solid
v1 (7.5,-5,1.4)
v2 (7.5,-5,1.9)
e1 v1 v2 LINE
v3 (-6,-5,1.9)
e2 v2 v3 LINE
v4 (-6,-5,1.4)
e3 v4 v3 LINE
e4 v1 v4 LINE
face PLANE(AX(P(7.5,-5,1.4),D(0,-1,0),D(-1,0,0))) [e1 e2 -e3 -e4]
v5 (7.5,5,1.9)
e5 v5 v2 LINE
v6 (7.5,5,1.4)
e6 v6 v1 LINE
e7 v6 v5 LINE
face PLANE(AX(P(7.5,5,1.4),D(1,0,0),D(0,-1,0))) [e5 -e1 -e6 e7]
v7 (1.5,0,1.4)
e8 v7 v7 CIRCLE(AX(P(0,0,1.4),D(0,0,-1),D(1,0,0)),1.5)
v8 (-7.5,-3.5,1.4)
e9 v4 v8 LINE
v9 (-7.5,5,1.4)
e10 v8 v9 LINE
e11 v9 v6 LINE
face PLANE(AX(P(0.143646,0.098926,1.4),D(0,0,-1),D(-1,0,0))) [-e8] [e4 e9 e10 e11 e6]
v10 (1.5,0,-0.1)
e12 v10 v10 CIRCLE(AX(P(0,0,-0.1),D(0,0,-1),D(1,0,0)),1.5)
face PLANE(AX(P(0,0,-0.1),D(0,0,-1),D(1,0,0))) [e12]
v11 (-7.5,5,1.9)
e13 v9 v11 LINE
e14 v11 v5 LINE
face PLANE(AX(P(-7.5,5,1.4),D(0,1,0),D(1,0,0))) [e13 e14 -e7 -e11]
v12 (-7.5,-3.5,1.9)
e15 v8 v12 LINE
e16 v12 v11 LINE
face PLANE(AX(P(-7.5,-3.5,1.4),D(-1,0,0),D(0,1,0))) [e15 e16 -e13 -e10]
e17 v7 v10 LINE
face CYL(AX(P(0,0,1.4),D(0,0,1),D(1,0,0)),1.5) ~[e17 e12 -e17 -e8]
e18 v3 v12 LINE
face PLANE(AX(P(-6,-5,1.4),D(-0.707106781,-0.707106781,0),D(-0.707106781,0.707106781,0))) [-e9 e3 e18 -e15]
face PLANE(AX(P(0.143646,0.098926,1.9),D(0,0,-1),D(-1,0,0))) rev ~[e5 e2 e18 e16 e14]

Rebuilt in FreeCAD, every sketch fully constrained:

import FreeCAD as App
import Part
import Sketcher
from FreeCAD import Vector
Q = App.Units.Quantity


def add_polygon(sketch, points):
    """Adds a closed chain of lines whose ends are joined by coincident constraints."""
    first, n = sketch.GeometryCount, len(points)
    for a, b in zip(points, points[1:] + points[:1]):
        sketch.addGeometry(Part.LineSegment(App.Vector(*a, 0), App.Vector(*b, 0)), False)
    for i in range(n):
        sketch.addConstraint(Sketcher.Constraint("Coincident", first + i, 2, first + (i + 1) % n, 1))

doc = App.newDocument("Part")
body = doc.addObject("PartDesign::Body", "Body")

# Sketch on XY plane
sketch1 = body.newObject("Sketcher::SketchObject", "Sketch")
sketch1.AttachmentSupport = (doc.getObject("XY_Plane"), [""])
sketch1.MapMode = "FlatFace"
sketch1.AttachmentOffset = App.Placement(Vector(0, 0, 1.4), App.Rotation())
add_polygon(sketch1, [(7.5, 5), (-7.5, 5), (-7.5, -3.5), (-6, -5), (7.5, -5)])  # lines 0-4
sketch1.addConstraint([
    Sketcher.Constraint("Horizontal", 0),
    Sketcher.Constraint("Vertical", 1),
    Sketcher.Constraint("Horizontal", 3),
    Sketcher.Constraint("Vertical", 4),
    Sketcher.Constraint("Symmetric", 0, 2, 3, 2, -1, 1),
    Sketcher.Constraint("DistanceX", 0, 2, 0, 1, Q("15 mm")),
    Sketcher.Constraint("DistanceY", 4, 1, 4, 2, Q("10 mm")),
    Sketcher.Constraint("Angle", 2, Q("-45 deg")),
    Sketcher.Constraint("DistanceX", 3, 1, 3, 2, Q("13.5 mm")),
])
pad1 = body.newObject("PartDesign::Pad", "Pad")
pad1.Profile = sketch1
pad1.Length = 0.5

# Sketch on XY plane
sketch2 = body.newObject("Sketcher::SketchObject", "Sketch001")
sketch2.AttachmentSupport = (doc.getObject("XY_Plane"), [""])
sketch2.MapMode = "FlatFace"
sketch2.AttachmentOffset = App.Placement(Vector(0, 0, 1.4), App.Rotation())
sketch2.addGeometry(Part.Circle(Vector(0, 0, 0), Vector(0, 0, 1), 1.5), False)
sketch2.addConstraint([
    Sketcher.Constraint("Coincident", 0, 3, -1, 1),
    Sketcher.Constraint("Diameter", 0, Q("3 mm")),
])
pad2 = body.newObject("PartDesign::Pad", "Pad001")
pad2.Profile = sketch2
pad2.Length = 1.5
pad2.Reversed = True

doc.recompute()
